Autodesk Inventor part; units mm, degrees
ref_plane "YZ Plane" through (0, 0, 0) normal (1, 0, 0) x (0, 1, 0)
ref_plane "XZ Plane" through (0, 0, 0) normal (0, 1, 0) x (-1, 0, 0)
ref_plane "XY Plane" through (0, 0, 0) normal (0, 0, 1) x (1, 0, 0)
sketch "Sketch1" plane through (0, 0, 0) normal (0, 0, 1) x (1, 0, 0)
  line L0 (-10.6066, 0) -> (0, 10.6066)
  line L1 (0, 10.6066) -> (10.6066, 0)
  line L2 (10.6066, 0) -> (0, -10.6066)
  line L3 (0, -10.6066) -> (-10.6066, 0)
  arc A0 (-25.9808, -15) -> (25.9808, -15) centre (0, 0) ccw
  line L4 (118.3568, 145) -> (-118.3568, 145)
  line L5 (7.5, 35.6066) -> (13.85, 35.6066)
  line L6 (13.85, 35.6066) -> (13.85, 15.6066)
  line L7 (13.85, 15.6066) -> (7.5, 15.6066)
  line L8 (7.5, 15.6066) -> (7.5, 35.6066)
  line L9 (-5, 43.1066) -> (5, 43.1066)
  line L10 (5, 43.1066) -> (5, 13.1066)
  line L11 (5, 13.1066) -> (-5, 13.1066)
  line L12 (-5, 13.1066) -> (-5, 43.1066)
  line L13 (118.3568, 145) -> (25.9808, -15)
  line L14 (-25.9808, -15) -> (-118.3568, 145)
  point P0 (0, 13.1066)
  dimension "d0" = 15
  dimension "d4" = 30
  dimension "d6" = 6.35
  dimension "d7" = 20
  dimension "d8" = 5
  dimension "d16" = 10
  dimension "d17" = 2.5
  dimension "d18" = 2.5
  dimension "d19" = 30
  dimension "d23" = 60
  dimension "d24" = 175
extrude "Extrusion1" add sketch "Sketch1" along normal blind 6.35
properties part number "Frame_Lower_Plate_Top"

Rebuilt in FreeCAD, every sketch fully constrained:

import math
import FreeCAD as App
import Part
import Sketcher
Q = App.Units.Quantity

doc = App.newDocument("Part")
params = doc.addObject("Spreadsheet::Sheet", "Params")
for row, (alias, value) in enumerate([
    ("sketch1_radius", "30 mm"),
    ("sketch1_width", "10 mm"),
    ("sketch1_height", "30 mm"),
    ("sketch1_height2", "20 mm"),
    ("sketch1_length", "15 mm"),
    ("pad1_length", "6.35 mm"),
], start=1):
    params.set(f"A{row}", alias)
    params.set(f"B{row}", "=" + value)
    params.setAlias(f"B{row}", alias)

body = doc.addObject("PartDesign::Body", "Body")

# Sketch on XY plane
sketch1 = doc.addObject("Sketcher::SketchObject", "Sketch")
body.addObject(sketch1)
sketch1.AttachmentSupport = (doc.XY_Plane, [""])
sketch1.MapMode = "FlatFace"
sketch1.addGeometry(Part.LineSegment(App.Vector(-118, 145, 0), App.Vector(-26, -15, 0)), False)
sketch1.addGeometry(Part.ArcOfCircle(Part.Circle(App.Vector(0, 0, 0), App.Vector(0, 0, 1), 30), math.radians(-150), math.radians(-30)), False)
sketch1.addGeometry(Part.LineSegment(App.Vector(26, -15, 0), App.Vector(118, 145, 0)), False)
sketch1.addGeometry(Part.LineSegment(App.Vector(118, 145, 0), App.Vector(-118, 145, 0)), False)
sketch1.addGeometry(Part.LineSegment(App.Vector(0, -11, 0), App.Vector(-11, 0, 0)), False)
sketch1.addGeometry(Part.LineSegment(App.Vector(-11, 0, 0), App.Vector(0, 11, 0)), False)
sketch1.addGeometry(Part.LineSegment(App.Vector(0, 11, 0), App.Vector(11, 0, 0)), False)
sketch1.addGeometry(Part.LineSegment(App.Vector(11, 0, 0), App.Vector(0, -11, 0)), False)
sketch1.addGeometry(Part.LineSegment(App.Vector(-5, 13, 0), App.Vector(-5, 43, 0)), False)
sketch1.addGeometry(Part.LineSegment(App.Vector(-5, 43, 0), App.Vector(5, 43, 0)), False)
sketch1.addGeometry(Part.LineSegment(App.Vector(5, 43, 0), App.Vector(5, 13, 0)), False)
sketch1.addGeometry(Part.LineSegment(App.Vector(5, 13, 0), App.Vector(-5, 13, 0)), False)
sketch1.addGeometry(Part.LineSegment(App.Vector(8, 16, 0), App.Vector(8, 36, 0)), False)
sketch1.addGeometry(Part.LineSegment(App.Vector(8, 36, 0), App.Vector(14, 36, 0)), False)
sketch1.addGeometry(Part.LineSegment(App.Vector(14, 36, 0), App.Vector(14, 16, 0)), False)
sketch1.addGeometry(Part.LineSegment(App.Vector(14, 16, 0), App.Vector(8, 16, 0)), False)
sketch1.addConstraint(Sketcher.Constraint("Tangent", 0, 2, 1, 1))
sketch1.addConstraint(Sketcher.Constraint("Tangent", 1, 2, 2, 1))
sketch1.addConstraint(Sketcher.Constraint("Coincident", 2, 2, 3, 1))
sketch1.addConstraint(Sketcher.Constraint("Coincident", 3, 2, 0, 1))
sketch1.addConstraint(Sketcher.Constraint("Coincident", 4, 2, 5, 1))
sketch1.addConstraint(Sketcher.Constraint("Coincident", 5, 2, 6, 1))
sketch1.addConstraint(Sketcher.Constraint("Coincident", 6, 2, 7, 1))
sketch1.addConstraint(Sketcher.Constraint("Coincident", 7, 2, 4, 1))
sketch1.addConstraint(Sketcher.Constraint("Coincident", 8, 2, 9, 1))
sketch1.addConstraint(Sketcher.Constraint("Coincident", 9, 2, 10, 1))
sketch1.addConstraint(Sketcher.Constraint("Coincident", 10, 2, 11, 1))
sketch1.addConstraint(Sketcher.Constraint("Coincident", 11, 2, 8, 1))
sketch1.addConstraint(Sketcher.Constraint("Coincident", 12, 2, 13, 1))
sketch1.addConstraint(Sketcher.Constraint("Coincident", 13, 2, 14, 1))
sketch1.addConstraint(Sketcher.Constraint("Coincident", 14, 2, 15, 1))
sketch1.addConstraint(Sketcher.Constraint("Coincident", 15, 2, 12, 1))
sketch1.addConstraint(Sketcher.Constraint("Horizontal", 3))
sketch1.addConstraint(Sketcher.Constraint("Vertical", 8))
sketch1.addConstraint(Sketcher.Constraint("Horizontal", 9))
sketch1.addConstraint(Sketcher.Constraint("Vertical", 10))
sketch1.addConstraint(Sketcher.Constraint("Horizontal", 11))
sketch1.addConstraint(Sketcher.Constraint("Vertical", 12))
sketch1.addConstraint(Sketcher.Constraint("Horizontal", 13))
sketch1.addConstraint(Sketcher.Constraint("Vertical", 14))
sketch1.addConstraint(Sketcher.Constraint("Horizontal", 15))
sketch1.addConstraint(Sketcher.Constraint("Coincident", 1, 3, -1, 1))
sketch1.addConstraint(Sketcher.Constraint("Symmetric", 4, 2, 6, 2, -1, 1))
sketch1.addConstraint(Sketcher.Constraint("Symmetric", 5, 2, 7, 2, -1, 1))
sketch1.addConstraint(Sketcher.Constraint("PointOnObject", 4, 2, -1))
sketch1.addConstraint(Sketcher.Constraint("PointOnObject", 5, 2, -2))
sketch1.addConstraint(Sketcher.Constraint("Perpendicular", 4, 5))
sketch1.addConstraint(Sketcher.Constraint("Horizontal", 0, 2, 1, 2))
sketch1.addConstraint(Sketcher.Constraint("Radius", 1, Q("30 mm")))
sketch1.addConstraint(Sketcher.Constraint("DistanceX", 9, 1, 9, 2, Q("10 mm")))
sketch1.addConstraint(Sketcher.Constraint("DistanceY", 8, 1, 8, 2, Q("30 mm")))
sketch1.addConstraint(Sketcher.Constraint("DistanceY", 12, 1, 12, 2, Q("20 mm")))
sketch1.addConstraint(Sketcher.Constraint("Angle", 0, Q("-60 deg")))
sketch1.addConstraint(Sketcher.Constraint("Distance", 4, Q("15 mm")))
sketch1.addConstraint(Sketcher.Constraint("DistanceX", 8, 2, -1, 1, Q("5 mm")))
sketch1.addConstraint(Sketcher.Constraint("DistanceY", 5, 2, 14, 2, Q("5 mm")))
sketch1.addConstraint(Sketcher.Constraint("DistanceX", 13, 1, 13, 2, Q("6.35 mm")))
sketch1.addConstraint(Sketcher.Constraint("DistanceY", 5, 2, 10, 2, Q("2.5 mm")))
sketch1.addConstraint(Sketcher.Constraint("DistanceX", 9, 2, 12, 2, Q("2.5 mm")))
sketch1.addConstraint(Sketcher.Constraint("DistanceY", -1, 1, 2, 2, Q("145 mm")))
sketch1.setExpression("Constraints[32]", "Params.sketch1_radius")
sketch1.setExpression("Constraints[33]", "Params.sketch1_width")
sketch1.setExpression("Constraints[34]", "Params.sketch1_height")
sketch1.setExpression("Constraints[35]", "Params.sketch1_height2")
sketch1.setExpression("Constraints[37]", "Params.sketch1_length")
pad1 = doc.addObject("PartDesign::Pad", "Pad")
body.addObject(pad1)
pad1.Profile = sketch1
pad1.setExpression("Length", "Params.pad1_length")

doc.recompute()
